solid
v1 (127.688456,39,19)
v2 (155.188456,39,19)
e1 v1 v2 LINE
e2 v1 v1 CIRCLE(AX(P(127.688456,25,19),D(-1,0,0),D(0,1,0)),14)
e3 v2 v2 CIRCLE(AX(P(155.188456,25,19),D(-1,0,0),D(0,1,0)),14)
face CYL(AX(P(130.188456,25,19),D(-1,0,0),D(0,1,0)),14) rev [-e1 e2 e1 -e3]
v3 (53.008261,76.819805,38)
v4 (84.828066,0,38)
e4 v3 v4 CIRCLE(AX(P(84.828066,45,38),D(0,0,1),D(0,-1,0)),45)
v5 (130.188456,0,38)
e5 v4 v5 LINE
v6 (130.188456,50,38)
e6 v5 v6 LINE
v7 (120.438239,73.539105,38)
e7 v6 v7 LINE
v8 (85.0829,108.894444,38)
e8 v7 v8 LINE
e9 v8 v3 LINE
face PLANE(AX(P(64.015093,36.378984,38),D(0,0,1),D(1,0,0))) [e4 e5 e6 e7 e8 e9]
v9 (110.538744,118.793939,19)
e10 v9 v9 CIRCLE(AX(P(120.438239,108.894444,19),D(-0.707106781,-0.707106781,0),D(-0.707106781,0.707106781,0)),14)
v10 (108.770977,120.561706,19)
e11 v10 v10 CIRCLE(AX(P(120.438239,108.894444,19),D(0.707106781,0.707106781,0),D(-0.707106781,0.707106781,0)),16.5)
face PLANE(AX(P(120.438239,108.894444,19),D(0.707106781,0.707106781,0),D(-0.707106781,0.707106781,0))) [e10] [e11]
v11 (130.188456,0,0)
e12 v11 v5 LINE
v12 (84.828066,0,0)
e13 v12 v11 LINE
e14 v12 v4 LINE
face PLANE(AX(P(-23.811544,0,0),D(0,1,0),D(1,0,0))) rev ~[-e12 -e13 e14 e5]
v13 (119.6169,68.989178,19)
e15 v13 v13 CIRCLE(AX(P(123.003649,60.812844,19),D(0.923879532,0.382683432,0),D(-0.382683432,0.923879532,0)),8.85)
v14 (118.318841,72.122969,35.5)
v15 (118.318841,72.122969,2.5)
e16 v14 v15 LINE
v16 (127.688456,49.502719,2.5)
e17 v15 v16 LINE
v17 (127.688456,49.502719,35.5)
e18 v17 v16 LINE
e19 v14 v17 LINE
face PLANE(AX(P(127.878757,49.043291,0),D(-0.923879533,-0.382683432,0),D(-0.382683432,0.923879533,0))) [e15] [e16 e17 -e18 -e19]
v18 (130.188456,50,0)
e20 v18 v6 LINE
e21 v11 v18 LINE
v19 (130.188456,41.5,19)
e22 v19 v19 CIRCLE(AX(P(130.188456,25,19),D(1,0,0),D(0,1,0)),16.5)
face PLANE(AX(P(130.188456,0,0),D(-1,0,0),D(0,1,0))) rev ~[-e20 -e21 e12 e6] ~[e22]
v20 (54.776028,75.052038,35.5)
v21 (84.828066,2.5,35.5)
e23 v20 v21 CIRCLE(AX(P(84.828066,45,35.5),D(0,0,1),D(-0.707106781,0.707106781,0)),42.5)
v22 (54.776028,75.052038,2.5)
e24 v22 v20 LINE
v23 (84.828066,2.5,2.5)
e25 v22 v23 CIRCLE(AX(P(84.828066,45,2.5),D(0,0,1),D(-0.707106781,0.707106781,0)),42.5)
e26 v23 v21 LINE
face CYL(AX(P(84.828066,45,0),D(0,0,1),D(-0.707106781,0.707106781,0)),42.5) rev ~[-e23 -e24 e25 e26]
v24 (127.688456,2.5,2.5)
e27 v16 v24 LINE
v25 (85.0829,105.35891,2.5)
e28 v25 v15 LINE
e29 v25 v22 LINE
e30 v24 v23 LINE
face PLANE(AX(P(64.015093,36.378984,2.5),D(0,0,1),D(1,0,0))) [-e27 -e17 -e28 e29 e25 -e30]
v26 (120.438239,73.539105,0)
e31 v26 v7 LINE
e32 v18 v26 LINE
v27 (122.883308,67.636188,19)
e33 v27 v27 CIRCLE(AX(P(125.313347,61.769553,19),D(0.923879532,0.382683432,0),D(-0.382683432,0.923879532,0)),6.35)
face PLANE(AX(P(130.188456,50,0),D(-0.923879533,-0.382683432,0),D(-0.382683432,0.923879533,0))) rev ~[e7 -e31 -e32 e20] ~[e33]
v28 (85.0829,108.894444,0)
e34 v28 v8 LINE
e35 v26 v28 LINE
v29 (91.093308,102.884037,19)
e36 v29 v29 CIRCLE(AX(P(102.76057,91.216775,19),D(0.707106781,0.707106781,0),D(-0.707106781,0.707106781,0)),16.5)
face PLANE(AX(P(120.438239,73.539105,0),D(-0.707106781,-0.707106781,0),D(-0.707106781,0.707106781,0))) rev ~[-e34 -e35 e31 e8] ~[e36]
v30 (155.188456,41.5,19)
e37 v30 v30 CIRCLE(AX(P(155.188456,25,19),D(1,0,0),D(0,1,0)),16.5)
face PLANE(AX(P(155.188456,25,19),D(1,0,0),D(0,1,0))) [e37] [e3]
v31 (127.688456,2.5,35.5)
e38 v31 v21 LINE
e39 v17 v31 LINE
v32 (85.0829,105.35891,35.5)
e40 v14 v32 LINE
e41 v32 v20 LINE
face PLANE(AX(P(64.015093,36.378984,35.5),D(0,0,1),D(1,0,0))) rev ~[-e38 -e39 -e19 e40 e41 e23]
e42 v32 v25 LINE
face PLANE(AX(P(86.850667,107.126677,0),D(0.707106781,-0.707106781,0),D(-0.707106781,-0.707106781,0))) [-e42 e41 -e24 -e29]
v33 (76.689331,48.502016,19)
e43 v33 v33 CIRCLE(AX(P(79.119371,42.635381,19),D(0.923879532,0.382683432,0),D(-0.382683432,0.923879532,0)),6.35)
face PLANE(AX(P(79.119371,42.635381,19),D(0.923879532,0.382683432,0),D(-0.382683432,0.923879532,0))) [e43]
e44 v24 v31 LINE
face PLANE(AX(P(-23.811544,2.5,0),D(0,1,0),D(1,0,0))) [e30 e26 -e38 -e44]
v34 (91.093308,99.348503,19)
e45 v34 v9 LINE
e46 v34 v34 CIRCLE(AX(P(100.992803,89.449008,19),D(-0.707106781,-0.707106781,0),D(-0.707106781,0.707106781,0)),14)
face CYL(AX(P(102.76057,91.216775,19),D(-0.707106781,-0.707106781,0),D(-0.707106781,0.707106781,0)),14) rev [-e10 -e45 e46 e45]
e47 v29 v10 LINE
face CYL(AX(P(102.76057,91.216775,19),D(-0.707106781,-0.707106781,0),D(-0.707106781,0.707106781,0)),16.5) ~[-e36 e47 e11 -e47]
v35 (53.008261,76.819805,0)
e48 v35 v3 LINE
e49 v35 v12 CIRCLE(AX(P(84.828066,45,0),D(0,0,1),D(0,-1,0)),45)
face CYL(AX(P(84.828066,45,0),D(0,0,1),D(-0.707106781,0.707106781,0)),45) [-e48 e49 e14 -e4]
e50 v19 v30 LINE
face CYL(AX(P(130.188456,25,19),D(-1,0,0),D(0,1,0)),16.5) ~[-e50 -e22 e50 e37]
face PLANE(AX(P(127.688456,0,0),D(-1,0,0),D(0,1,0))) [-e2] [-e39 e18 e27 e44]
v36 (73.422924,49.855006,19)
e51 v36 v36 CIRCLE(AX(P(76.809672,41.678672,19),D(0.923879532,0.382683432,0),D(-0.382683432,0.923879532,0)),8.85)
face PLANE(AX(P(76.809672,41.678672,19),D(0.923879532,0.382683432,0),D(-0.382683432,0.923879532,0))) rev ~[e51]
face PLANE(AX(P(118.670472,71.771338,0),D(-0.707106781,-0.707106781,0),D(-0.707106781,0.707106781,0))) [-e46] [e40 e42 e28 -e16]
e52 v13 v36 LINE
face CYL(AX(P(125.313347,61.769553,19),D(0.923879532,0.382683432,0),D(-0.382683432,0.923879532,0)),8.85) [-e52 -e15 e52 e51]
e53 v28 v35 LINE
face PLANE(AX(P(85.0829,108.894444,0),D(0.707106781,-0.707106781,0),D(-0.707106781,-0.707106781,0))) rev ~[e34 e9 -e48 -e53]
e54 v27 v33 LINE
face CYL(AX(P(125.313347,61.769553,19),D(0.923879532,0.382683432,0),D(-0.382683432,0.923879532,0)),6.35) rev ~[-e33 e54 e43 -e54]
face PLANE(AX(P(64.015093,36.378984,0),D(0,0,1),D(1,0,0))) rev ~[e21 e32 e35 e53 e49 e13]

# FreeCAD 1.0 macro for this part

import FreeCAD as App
import Part
import Sketcher

V = App.Vector
Q = App.Units.Quantity


def edges_at(feature, points):
    """Names of the edges that pass closest to the given points."""
    edges = feature.Shape.Edges
    near = lambda p: min(range(len(edges)), key=lambda i: edges[i].distToShape(Part.Vertex(*p))[0])
    return sorted({f"Edge{near(p) + 1}" for p in points})


def faces_at(feature, points):
    """Names of the faces that lie closest to the given points."""
    faces = feature.Shape.Faces
    near = lambda p: min(range(len(faces)), key=lambda i: faces[i].distToShape(Part.Vertex(*p))[0])
    return sorted({f"Face{near(p) + 1}" for p in points})


def add_polygon(sketch, points):
    """Adds a closed chain of lines whose ends are joined by coincident constraints."""
    first, n = sketch.GeometryCount, len(points)
    for a, b in zip(points, points[1:] + points[:1]):
        sketch.addGeometry(Part.LineSegment(App.Vector(*a, 0), App.Vector(*b, 0)), False)
    for i in range(n):
        sketch.addConstraint(Sketcher.Constraint("Coincident", first + i, 2, first + (i + 1) % n, 1))

doc = App.newDocument("Part")
body = doc.addObject("PartDesign::Body", "Body")

# Sketch on XY plane
sketch1 = body.newObject("Sketcher::SketchObject", "Sketch")
sketch1.AttachmentSupport = (doc.getObject("XY_Plane"), [""])
sketch1.MapMode = "FlatFace"
add_polygon(sketch1, [(85, 109), (-24, 0), (130, 0), (130, 50), (120, 74)])  # lines 0-4
sketch1.addConstraint([
    Sketcher.Constraint("Horizontal", 1),
    Sketcher.Constraint("Vertical", 2),
    Sketcher.Constraint("PointOnObject", 0, 2, -1),
    Sketcher.Constraint("Perpendicular", 0, 4),
    Sketcher.Constraint("DistanceX", 1, 1, 1, 2, 154.0),
    Sketcher.Constraint("DistanceY", 2, 1, 2, 2, 50.0),
    Sketcher.Constraint("Angle", 0, Q("-135 deg")),
    Sketcher.Constraint("Distance", 0, 154.0),
    Sketcher.Constraint("Distance", 4, 50.0),
    Sketcher.Constraint("DistanceX", -1, 1, 4, 2, 85.0829),
])
pad1 = body.newObject("PartDesign::Pad", "Pad")
pad1.Profile = sketch1
pad1.Length = 38

# Sketch on YZ plane
sketch2 = body.newObject("Sketcher::SketchObject", "Sketch001")
sketch2.AttachmentSupport = (doc.getObject("YZ_Plane"), [""])
sketch2.MapMode = "FlatFace"
sketch2.AttachmentOffset = App.Placement(V(0, 0, 130.188456), App.Rotation())
sketch2.addGeometry(Part.Circle(V(25, 19, 0), V(0, 0, 1), 16), False)
sketch2.addConstraint([
    Sketcher.Constraint("Diameter", 0, 33.0),
    Sketcher.Constraint("DistanceX", -1, 1, 0, 3, 25.0),
    Sketcher.Constraint("DistanceY", -1, 1, 0, 3, 19.0),
])
pad2 = body.newObject("PartDesign::Pad", "Pad001")
pad2.Profile = sketch2
pad2.Length = 25
doc.recompute()

fillet = body.newObject("PartDesign::Fillet", "Fillet")
fillet.Base = (pad2, edges_at(pad2, [(-23.812, 0, 19)]))
fillet.Radius = 45

# Sketch on an angled plane
sketch3 = body.newObject("Sketcher::SketchObject", "Sketch002")
sketch3.Placement = App.Placement(V(96.988672, 96.988672, 0), App.Rotation(V(-0.707106781, 0.707106781, 0), V(0, 0, 0.999999999), V(0.707106781, 0.707106781, 0), "ZXY"))
sketch3.addGeometry(Part.Circle(V(-8, 19, 0), V(0, 0, 1), 16), False)
sketch3.addConstraint([
    Sketcher.Constraint("Diameter", 0, 33.0),
    Sketcher.Constraint("DistanceY", -1, 1, 0, 3, 19.0),
    Sketcher.Constraint("DistanceX", 0, 3, -1, 1, 8.162696),
])
pad3 = body.newObject("PartDesign::Pad", "Pad002")
pad3.Profile = sketch3
pad3.Length = 25

# Sketch on an angled plane
sketch4 = body.newObject("Sketcher::SketchObject", "Sketch003")
sketch4.Placement = App.Placement(V(128.800467, 53.3509, 0), App.Rotation(V(-0.382683432, 0.923879532, 0), V(0, 0, 0.999999999), V(0.923879532, 0.382683432, 0), "ZXY"))
sketch4.addGeometry(Part.Circle(V(9, 19, 0), V(0, 0, 1), 6), False)
sketch4.addConstraint([
    Sketcher.Constraint("Diameter", 0, 12.7),
    Sketcher.Constraint("DistanceY", -1, 1, 0, 3, 19.0),
    Sketcher.Constraint("DistanceX", -1, 1, 0, 3, 9.112283),
])
pocket1 = body.newObject("PartDesign::Pocket", "Pocket")
pocket1.Profile = sketch4
pocket1.Length = 50
doc.recompute()

thickness = body.newObject("PartDesign::Thickness", "Thickness")
thickness.Base = (pocket1, faces_at(pocket1, [(155.188, 25, 19), (120.438, 108.894, 19)]))
thickness.Value = 2.5
thickness.Reversed = True
thickness.Join = "Intersection"

doc.recompute()
